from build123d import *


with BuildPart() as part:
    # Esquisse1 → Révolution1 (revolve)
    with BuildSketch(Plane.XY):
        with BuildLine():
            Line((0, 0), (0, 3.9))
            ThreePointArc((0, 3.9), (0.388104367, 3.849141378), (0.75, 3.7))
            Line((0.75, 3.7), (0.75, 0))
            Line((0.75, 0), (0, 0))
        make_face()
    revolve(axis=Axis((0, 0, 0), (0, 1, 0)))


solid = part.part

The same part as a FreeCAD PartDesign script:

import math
import FreeCAD as App
import Part
import Sketcher
from FreeCAD import Vector
Q = App.Units.Quantity

doc = App.newDocument("Part")
params = doc.addObject("Spreadsheet::Sheet", "Params")
for row, (alias, value) in enumerate([
    ("sketch1_height", "3.9 mm"),
    ("sketch1_height2", "3.7 mm"),
    ("sketch1_width", "0.75 mm"),
    ("revolution_angle", "360 deg"),
], start=1):
    params.set(f"A{row}", alias)
    params.set(f"B{row}", "=" + value)
    params.setAlias(f"B{row}", alias)

body = doc.addObject("PartDesign::Body", "Body")

# Sketch on XY plane
sketch1 = body.newObject("Sketcher::SketchObject", "Sketch")
sketch1.AttachmentSupport = (doc.getObject("XY_Plane"), [""])
sketch1.MapMode = "FlatFace"
sketch1.addGeometry(Part.LineSegment(Vector(0, 3.9, 0), Vector(0, 0, 0)), False)
sketch1.addGeometry(Part.LineSegment(Vector(0, 0, 0), Vector(0.8, 0, 0)), False)
sketch1.addGeometry(Part.LineSegment(Vector(0.8, 0, 0), Vector(0.8, 3.7, 0)), False)
sketch1.addGeometry(Part.ArcOfCircle(Part.Circle(Vector(0, 2.4, 0), Vector(0, 0, 1), 1.5), math.radians(60), math.radians(90)), False)
sketch1.addConstraint(Sketcher.Constraint("Coincident", 0, 2, 1, 1))
sketch1.addConstraint(Sketcher.Constraint("Coincident", 1, 2, 2, 1))
sketch1.addConstraint(Sketcher.Constraint("Coincident", 2, 2, 3, 1))
sketch1.addConstraint(Sketcher.Constraint("Coincident", 3, 2, 0, 1))
sketch1.addConstraint(Sketcher.Constraint("Vertical", 0))
sketch1.addConstraint(Sketcher.Constraint("Horizontal", 1))
sketch1.addConstraint(Sketcher.Constraint("Vertical", 2))
sketch1.addConstraint(Sketcher.Constraint("Coincident", 0, 2, -1, 1))
sketch1.addConstraint(Sketcher.Constraint("PointOnObject", 3, 3, -2))
sketch1.addConstraint(Sketcher.Constraint("DistanceY", 0, 2, 0, 1, Q("3.9 mm")))
sketch1.addConstraint(Sketcher.Constraint("DistanceY", 2, 1, 2, 2, Q("3.7 mm")))
sketch1.addConstraint(Sketcher.Constraint("DistanceX", 1, 1, 1, 2, Q("0.75 mm")))
sketch1.setExpression("Constraints[9]", "Params.sketch1_height")
sketch1.setExpression("Constraints[10]", "Params.sketch1_height2")
sketch1.setExpression("Constraints[11]", "Params.sketch1_width")
revolution = body.newObject("PartDesign::Revolution", "Revolution")
revolution.Profile = sketch1
revolution.ReferenceAxis = (sketch1, ["V_Axis"])
revolution.setExpression("Angle", "Params.revolution_angle")

doc.recompute()
